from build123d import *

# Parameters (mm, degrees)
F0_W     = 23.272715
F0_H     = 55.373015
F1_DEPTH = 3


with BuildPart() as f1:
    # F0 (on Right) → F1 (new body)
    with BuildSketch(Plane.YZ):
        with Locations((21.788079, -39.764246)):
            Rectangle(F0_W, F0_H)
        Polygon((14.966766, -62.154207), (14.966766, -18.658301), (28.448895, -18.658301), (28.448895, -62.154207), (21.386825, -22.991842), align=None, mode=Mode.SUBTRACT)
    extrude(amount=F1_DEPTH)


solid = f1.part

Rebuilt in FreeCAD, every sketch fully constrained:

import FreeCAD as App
import Part
import Sketcher

V = App.Vector


def add_polygon(sketch, points):
    """Adds a closed chain of lines whose ends are joined by coincident constraints."""
    first, n = sketch.GeometryCount, len(points)
    for a, b in zip(points, points[1:] + points[:1]):
        sketch.addGeometry(Part.LineSegment(App.Vector(*a, 0), App.Vector(*b, 0)), False)
    for i in range(n):
        sketch.addConstraint(Sketcher.Constraint("Coincident", first + i, 2, first + (i + 1) % n, 1))

doc = App.newDocument("Part")
body = doc.addObject("PartDesign::Body", "Body")

# Sketch on YZ plane
sketch1 = body.newObject("Sketcher::SketchObject", "Sketch")
sketch1.AttachmentSupport = (doc.getObject("YZ_Plane"), [""])
sketch1.MapMode = "FlatFace"
add_polygon(sketch1, [(10, -12), (10, -67), (33, -67), (33, -12)])  # lines 0-3
add_polygon(sketch1, [(21, -23), (15, -62), (15, -19), (28, -19), (28, -62)])  # lines 4-8
sketch1.addConstraint(Sketcher.Constraint("Vertical", 0))
sketch1.addConstraint(Sketcher.Constraint("Horizontal", 1))
sketch1.addConstraint(Sketcher.Constraint("Vertical", 2))
sketch1.addConstraint(Sketcher.Constraint("Horizontal", 3))
sketch1.addConstraint(Sketcher.Constraint("Vertical", 5))
sketch1.addConstraint(Sketcher.Constraint("Horizontal", 6))
sketch1.addConstraint(Sketcher.Constraint("Vertical", 7))
sketch1.addConstraint(Sketcher.Constraint("Horizontal", 4, 2, 7, 2))
sketch1.addConstraint(Sketcher.Constraint("DistanceX", 6, 1, 6, 2, 13.482129))
sketch1.addConstraint(Sketcher.Constraint("DistanceY", 5, 2, -1, 1, 18.658301))
sketch1.addConstraint(Sketcher.Constraint("Distance", 4, 39.68511))
sketch1.addConstraint(Sketcher.Constraint("DistanceX", 1, 1, 1, 2, 23.272715))
sketch1.addConstraint(Sketcher.Constraint("DistanceY", 0, 2, 0, 1, 55.373015))
sketch1.addConstraint(Sketcher.Constraint("DistanceY", 5, 1, 5, 2, 43.495906))
sketch1.addConstraint(Sketcher.Constraint("DistanceX", -1, 1, 0, 2, 10.151722))
sketch1.addConstraint(Sketcher.Constraint("DistanceY", 2, 2, -1, 1, 12.077739))
sketch1.addConstraint(Sketcher.Constraint("DistanceY", 8, 2, -1, 1, 22.991842))
sketch1.addConstraint(Sketcher.Constraint("DistanceX", 4, 2, 1, 2, 18.45767))
pad1 = body.newObject("PartDesign::Pad", "Pad")
pad1.Profile = sketch1
pad1.Length = 3

doc.recompute()
